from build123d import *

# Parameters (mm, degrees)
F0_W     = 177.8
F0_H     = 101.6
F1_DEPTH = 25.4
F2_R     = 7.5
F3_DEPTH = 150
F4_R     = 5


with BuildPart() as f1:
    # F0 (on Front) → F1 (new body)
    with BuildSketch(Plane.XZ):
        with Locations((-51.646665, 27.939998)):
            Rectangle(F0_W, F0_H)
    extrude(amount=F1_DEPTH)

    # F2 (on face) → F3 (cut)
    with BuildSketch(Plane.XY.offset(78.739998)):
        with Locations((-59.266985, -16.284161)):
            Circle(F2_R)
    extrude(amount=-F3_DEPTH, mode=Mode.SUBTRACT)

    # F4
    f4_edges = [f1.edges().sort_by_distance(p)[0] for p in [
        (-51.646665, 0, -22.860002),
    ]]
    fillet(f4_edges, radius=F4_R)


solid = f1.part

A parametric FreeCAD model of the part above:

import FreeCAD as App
import Part
import Sketcher

V = App.Vector
Q = App.Units.Quantity


def edges_at(feature, points):
    """Names of the edges that pass closest to the given points."""
    edges = feature.Shape.Edges
    near = lambda p: min(range(len(edges)), key=lambda i: edges[i].distToShape(Part.Vertex(*p))[0])
    return sorted({f"Edge{near(p) + 1}" for p in points})

doc = App.newDocument("Part")
body = doc.addObject("PartDesign::Body", "Body")

sketch1 = body.newObject("Sketcher::SketchObject", "Sketch")
sketch1.AttachmentSupport = (doc.getObject("XZ_Plane"), [""])
sketch1.MapMode = "FlatFace"
sketch1.addGeometry(Part.LineSegment(V(-140.546665, 78.739998, 0), V(-140.546665, -22.860002, 0)), False)
sketch1.addGeometry(Part.LineSegment(V(-140.546665, -22.860002, 0), V(37.253335, -22.860002, 0)), False)
sketch1.addGeometry(Part.LineSegment(V(37.253335, -22.860002, 0), V(37.253335, 78.739998, 0)), False)
sketch1.addGeometry(Part.LineSegment(V(37.253335, 78.739998, 0), V(-140.546665, 78.739998, 0)), False)
sketch1.addConstraint(Sketcher.Constraint("Coincident", 0, 2, 1, 1))
sketch1.addConstraint(Sketcher.Constraint("Coincident", 1, 2, 2, 1))
sketch1.addConstraint(Sketcher.Constraint("Coincident", 2, 2, 3, 1))
sketch1.addConstraint(Sketcher.Constraint("Coincident", 3, 2, 0, 1))
sketch1.addConstraint(Sketcher.Constraint("Vertical", 0))
sketch1.addConstraint(Sketcher.Constraint("Horizontal", 1))
sketch1.addConstraint(Sketcher.Constraint("Vertical", 2))
sketch1.addConstraint(Sketcher.Constraint("Horizontal", 3))
sketch1.addConstraint(Sketcher.Constraint("DistanceX", 1, 1, 1, 2, Q("177.8 mm")))
sketch1.addConstraint(Sketcher.Constraint("DistanceY", 0, 2, 0, 1, Q("101.6 mm")))
sketch1.addConstraint(Sketcher.Constraint("DistanceY", -1, 1, 2, 2, Q("78.739998 mm")))
sketch1.addConstraint(Sketcher.Constraint("DistanceX", 0, 2, -1, 1, Q("140.546665 mm")))
pad1 = body.newObject("PartDesign::Pad", "Pad")
pad1.Profile = sketch1
pad1.Length = 25.4

sketch2 = body.newObject("Sketcher::SketchObject", "Sketch001")
sketch2.AttachmentSupport = (doc.getObject("XY_Plane"), [""])
sketch2.MapMode = "FlatFace"
sketch2.AttachmentOffset = App.Placement(V(0, 0, 78.739998), App.Rotation())
sketch2.addGeometry(Part.Circle(V(-59.266985, -16.284161, 0), V(0, 0, 1), 7.5), False)
sketch2.addConstraint(Sketcher.Constraint("Diameter", 0, Q("15 mm")))
sketch2.addConstraint(Sketcher.Constraint("DistanceY", 0, 3, -1, 1, Q("16.284161 mm")))
sketch2.addConstraint(Sketcher.Constraint("DistanceX", 0, 3, -1, 1, Q("59.266985 mm")))
pocket1 = body.newObject("PartDesign::Pocket", "Pocket")
pocket1.Profile = sketch2
pocket1.Length = 150
doc.recompute()

fillet = body.newObject("PartDesign::Fillet", "Fillet")
fillet.Base = (pocket1, edges_at(pocket1, [(-51.647, 0, -22.86)]))
fillet.Radius = 5

doc.recompute()
